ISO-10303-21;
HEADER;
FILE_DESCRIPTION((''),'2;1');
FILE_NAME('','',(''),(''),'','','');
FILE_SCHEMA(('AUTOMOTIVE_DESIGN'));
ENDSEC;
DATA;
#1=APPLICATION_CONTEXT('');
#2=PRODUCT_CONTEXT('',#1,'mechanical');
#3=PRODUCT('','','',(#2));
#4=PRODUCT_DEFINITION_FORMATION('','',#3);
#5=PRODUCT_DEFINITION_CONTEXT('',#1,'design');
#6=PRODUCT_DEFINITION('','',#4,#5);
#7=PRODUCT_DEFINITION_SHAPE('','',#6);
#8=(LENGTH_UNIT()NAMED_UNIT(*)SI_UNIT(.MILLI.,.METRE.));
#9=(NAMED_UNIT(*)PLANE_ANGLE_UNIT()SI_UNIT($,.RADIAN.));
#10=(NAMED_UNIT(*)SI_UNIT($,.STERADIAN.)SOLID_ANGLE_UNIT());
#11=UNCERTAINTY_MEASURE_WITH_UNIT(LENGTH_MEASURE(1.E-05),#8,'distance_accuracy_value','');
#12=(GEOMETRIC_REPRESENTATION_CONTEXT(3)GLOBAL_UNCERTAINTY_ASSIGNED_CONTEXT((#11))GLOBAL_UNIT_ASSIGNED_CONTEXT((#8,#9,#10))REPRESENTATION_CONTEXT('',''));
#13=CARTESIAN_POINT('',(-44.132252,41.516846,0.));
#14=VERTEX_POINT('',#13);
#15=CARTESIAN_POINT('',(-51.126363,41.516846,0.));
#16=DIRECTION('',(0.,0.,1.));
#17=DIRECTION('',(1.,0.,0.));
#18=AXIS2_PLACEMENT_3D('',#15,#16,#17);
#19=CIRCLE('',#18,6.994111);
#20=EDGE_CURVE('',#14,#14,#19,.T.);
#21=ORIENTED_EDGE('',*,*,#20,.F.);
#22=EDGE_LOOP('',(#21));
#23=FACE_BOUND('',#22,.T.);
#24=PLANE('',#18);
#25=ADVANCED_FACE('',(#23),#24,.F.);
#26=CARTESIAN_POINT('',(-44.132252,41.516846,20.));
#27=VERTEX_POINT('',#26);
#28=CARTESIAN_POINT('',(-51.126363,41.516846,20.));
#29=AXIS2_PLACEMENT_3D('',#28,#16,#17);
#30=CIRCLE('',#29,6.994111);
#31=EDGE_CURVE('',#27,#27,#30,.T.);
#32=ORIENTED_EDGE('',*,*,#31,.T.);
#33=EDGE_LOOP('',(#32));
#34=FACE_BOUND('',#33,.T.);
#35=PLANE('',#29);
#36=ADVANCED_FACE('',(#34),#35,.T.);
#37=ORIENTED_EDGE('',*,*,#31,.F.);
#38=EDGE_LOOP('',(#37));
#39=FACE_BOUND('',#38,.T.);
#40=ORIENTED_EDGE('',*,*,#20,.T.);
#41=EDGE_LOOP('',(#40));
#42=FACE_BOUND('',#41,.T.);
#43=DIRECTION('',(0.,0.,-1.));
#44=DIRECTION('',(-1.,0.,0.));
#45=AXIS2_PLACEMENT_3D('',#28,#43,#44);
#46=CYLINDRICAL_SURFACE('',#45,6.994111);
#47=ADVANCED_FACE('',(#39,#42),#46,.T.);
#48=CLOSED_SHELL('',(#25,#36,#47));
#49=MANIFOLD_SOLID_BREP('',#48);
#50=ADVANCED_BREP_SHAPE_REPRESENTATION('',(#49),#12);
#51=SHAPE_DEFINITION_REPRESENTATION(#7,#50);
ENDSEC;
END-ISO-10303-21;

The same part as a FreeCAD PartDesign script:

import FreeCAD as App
import Part
import Sketcher
from FreeCAD import Vector


def add_polygon(sketch, points):
    """Adds a closed chain of lines whose ends are joined by coincident constraints."""
    first, n = sketch.GeometryCount, len(points)
    for a, b in zip(points, points[1:] + points[:1]):
        sketch.addGeometry(Part.LineSegment(App.Vector(*a, 0), App.Vector(*b, 0)), False)
    for i in range(n):
        sketch.addConstraint(Sketcher.Constraint("Coincident", first + i, 2, first + (i + 1) % n, 1))

doc = App.newDocument("Part")
params = doc.addObject("Spreadsheet::Sheet", "Params")
for row, (alias, value) in enumerate([
    ("pad1_length", "50 mm"),
    ("pad2_length", "50 mm"),
    ("pad3_length", "20 mm"),
    ("pad4_length", "20 mm"),
], start=1):
    params.set(f"A{row}", alias)
    params.set(f"B{row}", "=" + value)
    params.setAlias(f"B{row}", alias)

body = doc.addObject("PartDesign::Body", "Body")

sketch1 = body.newObject("Sketcher::SketchObject", "Sketch")
sketch1.AttachmentSupport = (doc.getObject("XY_Plane"), [""])
sketch1.MapMode = "FlatFace"
add_polygon(sketch1, [(-64, 54), (-64, -54), (64, -54), (64, 54)])
add_polygon(sketch1, [(62, -52), (-62, -52), (-62, 52), (62, 52)])
sketch1.addConstraint([
    Sketcher.Constraint("Vertical", 0),
    Sketcher.Constraint("Horizontal", 1),
    Sketcher.Constraint("Vertical", 2),
    Sketcher.Constraint("Horizontal", 3),
    Sketcher.Constraint("Horizontal", 4),
    Sketcher.Constraint("Vertical", 5),
    Sketcher.Constraint("Horizontal", 6),
    Sketcher.Constraint("Vertical", 7),
    Sketcher.Constraint("Symmetric", 0, 2, 2, 2, -1, 1),
    Sketcher.Constraint("Symmetric", 4, 2, 6, 2, -1, 1),
    Sketcher.Constraint("DistanceX", 0, 2, 4, 2, 2.0),
    Sketcher.Constraint("DistanceY", 0, 2, 4, 2, 2.0),
    Sketcher.Constraint("DistanceX", 1, 1, 1, 2, 128.922623),
    Sketcher.Constraint("DistanceY", 0, 2, 0, 1, 108.547543),
])
pad1 = body.newObject("PartDesign::Pad", "Pad")
pad1.Profile = sketch1
pad1.setExpression("Length", "Params.pad1_length")
body2 = doc.addObject("PartDesign::Body", "Body001")

sketch2 = body2.newObject("Sketcher::SketchObject", "Sketch001")
sketch2.AttachmentSupport = (doc.getObject("XY_Plane001"), [""])
sketch2.MapMode = "FlatFace"
sketch2.addGeometry(Part.Circle(Vector(0, 0, 0), Vector(0, 0, 1), 48), False)
sketch2.addConstraint([
    Sketcher.Constraint("Coincident", 0, 3, -1, 1),
    Sketcher.Constraint("Diameter", 0, 96.993141),
])
pad2 = body2.newObject("PartDesign::Pad", "Pad001")
pad2.Profile = sketch2
pad2.setExpression("Length", "Params.pad2_length")
body3 = doc.addObject("PartDesign::Body", "Body002")

sketch3 = body3.newObject("Sketcher::SketchObject", "Sketch002")
sketch3.AttachmentSupport = (doc.getObject("XY_Plane002"), [""])
sketch3.MapMode = "FlatFace"
sketch3.addGeometry(Part.Circle(Vector(-51, 42, 0), Vector(0, 0, 1), 7), False)
sketch3.addConstraint([
    Sketcher.Constraint("Diameter", 0, 13.988221),
    Sketcher.Constraint("DistanceX", 0, 3, -1, 1, 51.126363),
    Sketcher.Constraint("DistanceY", -1, 1, 0, 3, 41.516846),
])
pad3 = body3.newObject("PartDesign::Pad", "Pad002")
pad3.Profile = sketch3
pad3.setExpression("Length", "Params.pad3_length")
body4 = doc.addObject("PartDesign::Body", "Body003")

sketch4 = body4.newObject("Sketcher::SketchObject", "Sketch003")
sketch4.AttachmentSupport = (doc.getObject("XY_Plane003"), [""])
sketch4.MapMode = "FlatFace"
sketch4.addGeometry(Part.Circle(Vector(46, 44, 0), Vector(0, 0, 1), 6), False)
sketch4.addConstraint([
    Sketcher.Constraint("Diameter", 0, 12.241382),
    Sketcher.Constraint("DistanceX", -1, 1, 0, 3, 46.461549),
    Sketcher.Constraint("DistanceY", -1, 1, 0, 3, 43.755957),
])
pad4 = body4.newObject("PartDesign::Pad", "Pad003")
pad4.Profile = sketch4
pad4.setExpression("Length", "Params.pad4_length")
body.Visibility = False
body2.Visibility = False
body4.Visibility = False

doc.recompute()
